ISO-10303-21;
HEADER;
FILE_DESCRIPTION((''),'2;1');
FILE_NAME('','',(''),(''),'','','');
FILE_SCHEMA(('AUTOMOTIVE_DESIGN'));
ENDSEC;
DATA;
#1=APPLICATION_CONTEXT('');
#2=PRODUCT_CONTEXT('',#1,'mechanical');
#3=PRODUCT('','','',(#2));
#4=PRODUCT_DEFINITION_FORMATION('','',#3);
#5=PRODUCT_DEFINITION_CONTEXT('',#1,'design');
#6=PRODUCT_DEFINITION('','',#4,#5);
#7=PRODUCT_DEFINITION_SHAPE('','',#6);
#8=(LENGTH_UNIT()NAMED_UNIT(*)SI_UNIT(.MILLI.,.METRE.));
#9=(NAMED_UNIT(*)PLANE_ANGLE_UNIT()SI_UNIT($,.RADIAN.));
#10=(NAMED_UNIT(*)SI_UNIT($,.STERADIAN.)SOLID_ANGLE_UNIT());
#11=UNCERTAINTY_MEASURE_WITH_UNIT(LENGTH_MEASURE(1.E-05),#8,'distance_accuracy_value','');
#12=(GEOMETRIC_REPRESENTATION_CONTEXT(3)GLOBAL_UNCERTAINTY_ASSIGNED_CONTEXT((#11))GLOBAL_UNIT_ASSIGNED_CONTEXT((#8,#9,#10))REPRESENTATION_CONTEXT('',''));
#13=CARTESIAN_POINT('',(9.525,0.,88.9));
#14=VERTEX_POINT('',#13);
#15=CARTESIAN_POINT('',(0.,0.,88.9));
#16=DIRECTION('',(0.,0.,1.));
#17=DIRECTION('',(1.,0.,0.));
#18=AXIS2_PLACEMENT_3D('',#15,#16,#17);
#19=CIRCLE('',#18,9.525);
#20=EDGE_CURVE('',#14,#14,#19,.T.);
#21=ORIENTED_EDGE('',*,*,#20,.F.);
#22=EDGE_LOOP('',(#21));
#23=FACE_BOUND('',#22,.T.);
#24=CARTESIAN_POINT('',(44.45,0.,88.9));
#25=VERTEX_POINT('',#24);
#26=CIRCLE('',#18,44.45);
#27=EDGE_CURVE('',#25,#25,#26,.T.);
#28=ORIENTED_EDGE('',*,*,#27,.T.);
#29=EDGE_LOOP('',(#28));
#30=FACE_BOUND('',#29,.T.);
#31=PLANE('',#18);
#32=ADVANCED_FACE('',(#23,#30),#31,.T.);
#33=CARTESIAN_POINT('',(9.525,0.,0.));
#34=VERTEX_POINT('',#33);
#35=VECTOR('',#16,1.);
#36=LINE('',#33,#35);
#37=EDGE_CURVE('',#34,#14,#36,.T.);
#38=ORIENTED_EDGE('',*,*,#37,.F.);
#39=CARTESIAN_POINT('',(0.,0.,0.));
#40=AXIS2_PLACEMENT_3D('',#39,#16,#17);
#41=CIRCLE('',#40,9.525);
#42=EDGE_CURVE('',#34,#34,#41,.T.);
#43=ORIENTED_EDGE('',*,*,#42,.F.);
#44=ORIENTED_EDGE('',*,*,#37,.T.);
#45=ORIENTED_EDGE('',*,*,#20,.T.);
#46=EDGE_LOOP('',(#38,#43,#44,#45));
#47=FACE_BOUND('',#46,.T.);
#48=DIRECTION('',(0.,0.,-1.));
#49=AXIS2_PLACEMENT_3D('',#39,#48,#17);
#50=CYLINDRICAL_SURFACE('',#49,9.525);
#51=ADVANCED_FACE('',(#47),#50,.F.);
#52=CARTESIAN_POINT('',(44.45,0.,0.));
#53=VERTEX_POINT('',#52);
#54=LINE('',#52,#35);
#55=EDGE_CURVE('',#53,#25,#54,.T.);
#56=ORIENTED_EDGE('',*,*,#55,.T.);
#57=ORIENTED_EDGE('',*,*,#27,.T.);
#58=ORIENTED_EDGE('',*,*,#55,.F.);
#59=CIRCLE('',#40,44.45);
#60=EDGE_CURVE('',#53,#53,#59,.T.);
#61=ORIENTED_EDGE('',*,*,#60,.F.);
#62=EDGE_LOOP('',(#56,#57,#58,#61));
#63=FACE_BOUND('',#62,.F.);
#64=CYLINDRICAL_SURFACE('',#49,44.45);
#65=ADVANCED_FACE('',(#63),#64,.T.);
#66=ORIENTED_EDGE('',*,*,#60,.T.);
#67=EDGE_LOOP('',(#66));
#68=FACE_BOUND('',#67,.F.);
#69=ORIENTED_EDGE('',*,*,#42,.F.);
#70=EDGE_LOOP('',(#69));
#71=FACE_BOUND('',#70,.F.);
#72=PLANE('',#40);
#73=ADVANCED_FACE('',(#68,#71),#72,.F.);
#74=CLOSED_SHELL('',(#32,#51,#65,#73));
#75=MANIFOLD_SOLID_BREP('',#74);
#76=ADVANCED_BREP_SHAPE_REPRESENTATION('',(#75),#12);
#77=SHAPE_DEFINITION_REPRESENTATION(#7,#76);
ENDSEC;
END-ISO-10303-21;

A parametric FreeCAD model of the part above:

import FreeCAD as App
import Part
import Sketcher
Q = App.Units.Quantity

doc = App.newDocument("Part")
body = doc.addObject("PartDesign::Body", "Body")

sketch1 = body.newObject("Sketcher::SketchObject", "Sketch")
sketch1.AttachmentSupport = (doc.getObject("XY_Plane"), [""])
sketch1.MapMode = "FlatFace"
sketch1.addGeometry([
    Part.Circle(App.Vector(0, 0, 0), App.Vector(0, 0, 1), 44),
    Part.Circle(App.Vector(0, 0, 0), App.Vector(0, 0, 1), 10),
], False)
sketch1.addConstraint([
    Sketcher.Constraint("Coincident", 0, 3, -1, 1),
    Sketcher.Constraint("Coincident", 1, 3, -1, 1),
    Sketcher.Constraint("Diameter", 0, Q("3.5 in")),
    Sketcher.Constraint("Diameter", 1, Q("0.75 in")),
])
pad1 = body.newObject("PartDesign::Pad", "Pad")
pad1.Profile = sketch1
pad1.Length = Q("3.5 in")

doc.recompute()
